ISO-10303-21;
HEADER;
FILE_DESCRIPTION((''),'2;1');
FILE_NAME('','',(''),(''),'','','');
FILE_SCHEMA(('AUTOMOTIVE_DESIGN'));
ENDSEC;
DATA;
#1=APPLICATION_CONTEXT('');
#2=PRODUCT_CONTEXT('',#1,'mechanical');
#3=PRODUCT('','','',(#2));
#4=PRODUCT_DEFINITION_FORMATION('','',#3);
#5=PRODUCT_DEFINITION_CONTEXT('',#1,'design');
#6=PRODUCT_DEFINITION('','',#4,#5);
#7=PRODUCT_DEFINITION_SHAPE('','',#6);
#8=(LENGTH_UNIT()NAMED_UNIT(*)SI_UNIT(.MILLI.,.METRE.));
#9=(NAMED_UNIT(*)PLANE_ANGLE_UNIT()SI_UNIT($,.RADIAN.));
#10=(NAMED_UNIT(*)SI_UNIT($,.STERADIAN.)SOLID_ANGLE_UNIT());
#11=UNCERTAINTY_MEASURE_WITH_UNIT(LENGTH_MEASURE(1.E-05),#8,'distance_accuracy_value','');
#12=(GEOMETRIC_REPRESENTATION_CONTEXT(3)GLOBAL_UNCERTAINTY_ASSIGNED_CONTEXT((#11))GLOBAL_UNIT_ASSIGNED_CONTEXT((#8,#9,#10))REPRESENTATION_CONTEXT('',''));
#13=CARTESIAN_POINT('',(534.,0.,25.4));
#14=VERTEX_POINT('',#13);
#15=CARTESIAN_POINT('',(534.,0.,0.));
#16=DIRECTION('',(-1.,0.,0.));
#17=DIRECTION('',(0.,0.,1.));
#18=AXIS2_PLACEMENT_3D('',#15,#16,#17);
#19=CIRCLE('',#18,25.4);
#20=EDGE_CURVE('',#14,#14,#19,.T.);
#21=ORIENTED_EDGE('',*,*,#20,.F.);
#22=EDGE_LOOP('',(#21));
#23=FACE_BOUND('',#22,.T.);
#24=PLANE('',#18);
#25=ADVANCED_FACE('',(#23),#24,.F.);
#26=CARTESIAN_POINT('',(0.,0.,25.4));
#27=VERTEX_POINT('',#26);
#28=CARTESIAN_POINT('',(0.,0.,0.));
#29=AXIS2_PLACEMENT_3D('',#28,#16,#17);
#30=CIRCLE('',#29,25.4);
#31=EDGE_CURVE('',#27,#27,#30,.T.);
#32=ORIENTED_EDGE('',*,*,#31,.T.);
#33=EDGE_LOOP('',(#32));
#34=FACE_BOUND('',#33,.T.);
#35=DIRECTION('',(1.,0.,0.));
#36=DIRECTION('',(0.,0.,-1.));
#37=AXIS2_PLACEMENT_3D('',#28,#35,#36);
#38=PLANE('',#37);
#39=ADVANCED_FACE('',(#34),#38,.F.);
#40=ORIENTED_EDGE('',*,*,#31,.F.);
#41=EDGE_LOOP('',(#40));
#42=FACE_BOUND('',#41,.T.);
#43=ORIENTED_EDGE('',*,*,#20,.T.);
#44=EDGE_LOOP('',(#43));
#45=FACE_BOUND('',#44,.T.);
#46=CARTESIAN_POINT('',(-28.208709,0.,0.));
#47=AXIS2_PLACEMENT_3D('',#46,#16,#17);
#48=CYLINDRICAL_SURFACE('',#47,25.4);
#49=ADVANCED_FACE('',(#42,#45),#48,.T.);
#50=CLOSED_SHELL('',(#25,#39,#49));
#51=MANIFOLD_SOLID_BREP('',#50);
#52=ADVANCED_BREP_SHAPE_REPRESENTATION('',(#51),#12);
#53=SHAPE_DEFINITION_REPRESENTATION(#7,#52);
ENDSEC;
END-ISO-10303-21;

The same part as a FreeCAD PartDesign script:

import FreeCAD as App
import Part
import Sketcher
from FreeCAD import Vector
Q = App.Units.Quantity


def add_polygon(sketch, points):
    """Adds a closed chain of lines whose ends are joined by coincident constraints."""
    first, n = sketch.GeometryCount, len(points)
    for a, b in zip(points, points[1:] + points[:1]):
        sketch.addGeometry(Part.LineSegment(App.Vector(*a, 0), App.Vector(*b, 0)), False)
    for i in range(n):
        sketch.addConstraint(Sketcher.Constraint("Coincident", first + i, 2, first + (i + 1) % n, 1))

doc = App.newDocument("Part")
body = doc.addObject("PartDesign::Body", "Body")

# Sketch on XY plane
sketch1 = body.newObject("Sketcher::SketchObject", "Sketch")
sketch1.AttachmentSupport = (doc.getObject("XY_Plane"), [""])
sketch1.MapMode = "FlatFace"
add_polygon(sketch1, [(0, 25.4), (0, 0), (534, 0), (534, 25.4)])  # lines 0-3
sketch1.addConstraint([
    Sketcher.Constraint("Vertical", 0),
    Sketcher.Constraint("Horizontal", 1),
    Sketcher.Constraint("Vertical", 2),
    Sketcher.Constraint("Horizontal", 3),
    Sketcher.Constraint("Coincident", 0, 2, -1, 1),
    Sketcher.Constraint("DistanceX", 1, 1, 1, 2, Q("534 mm")),
    Sketcher.Constraint("DistanceY", 0, 2, 0, 1, Q("25.4 mm")),
])
revolution = body.newObject("PartDesign::Revolution", "Revolution")
revolution.Profile = sketch1
revolution.ReferenceAxis = (sketch1, ["H_Axis"])
revolution.Angle = 360

doc.recompute()
